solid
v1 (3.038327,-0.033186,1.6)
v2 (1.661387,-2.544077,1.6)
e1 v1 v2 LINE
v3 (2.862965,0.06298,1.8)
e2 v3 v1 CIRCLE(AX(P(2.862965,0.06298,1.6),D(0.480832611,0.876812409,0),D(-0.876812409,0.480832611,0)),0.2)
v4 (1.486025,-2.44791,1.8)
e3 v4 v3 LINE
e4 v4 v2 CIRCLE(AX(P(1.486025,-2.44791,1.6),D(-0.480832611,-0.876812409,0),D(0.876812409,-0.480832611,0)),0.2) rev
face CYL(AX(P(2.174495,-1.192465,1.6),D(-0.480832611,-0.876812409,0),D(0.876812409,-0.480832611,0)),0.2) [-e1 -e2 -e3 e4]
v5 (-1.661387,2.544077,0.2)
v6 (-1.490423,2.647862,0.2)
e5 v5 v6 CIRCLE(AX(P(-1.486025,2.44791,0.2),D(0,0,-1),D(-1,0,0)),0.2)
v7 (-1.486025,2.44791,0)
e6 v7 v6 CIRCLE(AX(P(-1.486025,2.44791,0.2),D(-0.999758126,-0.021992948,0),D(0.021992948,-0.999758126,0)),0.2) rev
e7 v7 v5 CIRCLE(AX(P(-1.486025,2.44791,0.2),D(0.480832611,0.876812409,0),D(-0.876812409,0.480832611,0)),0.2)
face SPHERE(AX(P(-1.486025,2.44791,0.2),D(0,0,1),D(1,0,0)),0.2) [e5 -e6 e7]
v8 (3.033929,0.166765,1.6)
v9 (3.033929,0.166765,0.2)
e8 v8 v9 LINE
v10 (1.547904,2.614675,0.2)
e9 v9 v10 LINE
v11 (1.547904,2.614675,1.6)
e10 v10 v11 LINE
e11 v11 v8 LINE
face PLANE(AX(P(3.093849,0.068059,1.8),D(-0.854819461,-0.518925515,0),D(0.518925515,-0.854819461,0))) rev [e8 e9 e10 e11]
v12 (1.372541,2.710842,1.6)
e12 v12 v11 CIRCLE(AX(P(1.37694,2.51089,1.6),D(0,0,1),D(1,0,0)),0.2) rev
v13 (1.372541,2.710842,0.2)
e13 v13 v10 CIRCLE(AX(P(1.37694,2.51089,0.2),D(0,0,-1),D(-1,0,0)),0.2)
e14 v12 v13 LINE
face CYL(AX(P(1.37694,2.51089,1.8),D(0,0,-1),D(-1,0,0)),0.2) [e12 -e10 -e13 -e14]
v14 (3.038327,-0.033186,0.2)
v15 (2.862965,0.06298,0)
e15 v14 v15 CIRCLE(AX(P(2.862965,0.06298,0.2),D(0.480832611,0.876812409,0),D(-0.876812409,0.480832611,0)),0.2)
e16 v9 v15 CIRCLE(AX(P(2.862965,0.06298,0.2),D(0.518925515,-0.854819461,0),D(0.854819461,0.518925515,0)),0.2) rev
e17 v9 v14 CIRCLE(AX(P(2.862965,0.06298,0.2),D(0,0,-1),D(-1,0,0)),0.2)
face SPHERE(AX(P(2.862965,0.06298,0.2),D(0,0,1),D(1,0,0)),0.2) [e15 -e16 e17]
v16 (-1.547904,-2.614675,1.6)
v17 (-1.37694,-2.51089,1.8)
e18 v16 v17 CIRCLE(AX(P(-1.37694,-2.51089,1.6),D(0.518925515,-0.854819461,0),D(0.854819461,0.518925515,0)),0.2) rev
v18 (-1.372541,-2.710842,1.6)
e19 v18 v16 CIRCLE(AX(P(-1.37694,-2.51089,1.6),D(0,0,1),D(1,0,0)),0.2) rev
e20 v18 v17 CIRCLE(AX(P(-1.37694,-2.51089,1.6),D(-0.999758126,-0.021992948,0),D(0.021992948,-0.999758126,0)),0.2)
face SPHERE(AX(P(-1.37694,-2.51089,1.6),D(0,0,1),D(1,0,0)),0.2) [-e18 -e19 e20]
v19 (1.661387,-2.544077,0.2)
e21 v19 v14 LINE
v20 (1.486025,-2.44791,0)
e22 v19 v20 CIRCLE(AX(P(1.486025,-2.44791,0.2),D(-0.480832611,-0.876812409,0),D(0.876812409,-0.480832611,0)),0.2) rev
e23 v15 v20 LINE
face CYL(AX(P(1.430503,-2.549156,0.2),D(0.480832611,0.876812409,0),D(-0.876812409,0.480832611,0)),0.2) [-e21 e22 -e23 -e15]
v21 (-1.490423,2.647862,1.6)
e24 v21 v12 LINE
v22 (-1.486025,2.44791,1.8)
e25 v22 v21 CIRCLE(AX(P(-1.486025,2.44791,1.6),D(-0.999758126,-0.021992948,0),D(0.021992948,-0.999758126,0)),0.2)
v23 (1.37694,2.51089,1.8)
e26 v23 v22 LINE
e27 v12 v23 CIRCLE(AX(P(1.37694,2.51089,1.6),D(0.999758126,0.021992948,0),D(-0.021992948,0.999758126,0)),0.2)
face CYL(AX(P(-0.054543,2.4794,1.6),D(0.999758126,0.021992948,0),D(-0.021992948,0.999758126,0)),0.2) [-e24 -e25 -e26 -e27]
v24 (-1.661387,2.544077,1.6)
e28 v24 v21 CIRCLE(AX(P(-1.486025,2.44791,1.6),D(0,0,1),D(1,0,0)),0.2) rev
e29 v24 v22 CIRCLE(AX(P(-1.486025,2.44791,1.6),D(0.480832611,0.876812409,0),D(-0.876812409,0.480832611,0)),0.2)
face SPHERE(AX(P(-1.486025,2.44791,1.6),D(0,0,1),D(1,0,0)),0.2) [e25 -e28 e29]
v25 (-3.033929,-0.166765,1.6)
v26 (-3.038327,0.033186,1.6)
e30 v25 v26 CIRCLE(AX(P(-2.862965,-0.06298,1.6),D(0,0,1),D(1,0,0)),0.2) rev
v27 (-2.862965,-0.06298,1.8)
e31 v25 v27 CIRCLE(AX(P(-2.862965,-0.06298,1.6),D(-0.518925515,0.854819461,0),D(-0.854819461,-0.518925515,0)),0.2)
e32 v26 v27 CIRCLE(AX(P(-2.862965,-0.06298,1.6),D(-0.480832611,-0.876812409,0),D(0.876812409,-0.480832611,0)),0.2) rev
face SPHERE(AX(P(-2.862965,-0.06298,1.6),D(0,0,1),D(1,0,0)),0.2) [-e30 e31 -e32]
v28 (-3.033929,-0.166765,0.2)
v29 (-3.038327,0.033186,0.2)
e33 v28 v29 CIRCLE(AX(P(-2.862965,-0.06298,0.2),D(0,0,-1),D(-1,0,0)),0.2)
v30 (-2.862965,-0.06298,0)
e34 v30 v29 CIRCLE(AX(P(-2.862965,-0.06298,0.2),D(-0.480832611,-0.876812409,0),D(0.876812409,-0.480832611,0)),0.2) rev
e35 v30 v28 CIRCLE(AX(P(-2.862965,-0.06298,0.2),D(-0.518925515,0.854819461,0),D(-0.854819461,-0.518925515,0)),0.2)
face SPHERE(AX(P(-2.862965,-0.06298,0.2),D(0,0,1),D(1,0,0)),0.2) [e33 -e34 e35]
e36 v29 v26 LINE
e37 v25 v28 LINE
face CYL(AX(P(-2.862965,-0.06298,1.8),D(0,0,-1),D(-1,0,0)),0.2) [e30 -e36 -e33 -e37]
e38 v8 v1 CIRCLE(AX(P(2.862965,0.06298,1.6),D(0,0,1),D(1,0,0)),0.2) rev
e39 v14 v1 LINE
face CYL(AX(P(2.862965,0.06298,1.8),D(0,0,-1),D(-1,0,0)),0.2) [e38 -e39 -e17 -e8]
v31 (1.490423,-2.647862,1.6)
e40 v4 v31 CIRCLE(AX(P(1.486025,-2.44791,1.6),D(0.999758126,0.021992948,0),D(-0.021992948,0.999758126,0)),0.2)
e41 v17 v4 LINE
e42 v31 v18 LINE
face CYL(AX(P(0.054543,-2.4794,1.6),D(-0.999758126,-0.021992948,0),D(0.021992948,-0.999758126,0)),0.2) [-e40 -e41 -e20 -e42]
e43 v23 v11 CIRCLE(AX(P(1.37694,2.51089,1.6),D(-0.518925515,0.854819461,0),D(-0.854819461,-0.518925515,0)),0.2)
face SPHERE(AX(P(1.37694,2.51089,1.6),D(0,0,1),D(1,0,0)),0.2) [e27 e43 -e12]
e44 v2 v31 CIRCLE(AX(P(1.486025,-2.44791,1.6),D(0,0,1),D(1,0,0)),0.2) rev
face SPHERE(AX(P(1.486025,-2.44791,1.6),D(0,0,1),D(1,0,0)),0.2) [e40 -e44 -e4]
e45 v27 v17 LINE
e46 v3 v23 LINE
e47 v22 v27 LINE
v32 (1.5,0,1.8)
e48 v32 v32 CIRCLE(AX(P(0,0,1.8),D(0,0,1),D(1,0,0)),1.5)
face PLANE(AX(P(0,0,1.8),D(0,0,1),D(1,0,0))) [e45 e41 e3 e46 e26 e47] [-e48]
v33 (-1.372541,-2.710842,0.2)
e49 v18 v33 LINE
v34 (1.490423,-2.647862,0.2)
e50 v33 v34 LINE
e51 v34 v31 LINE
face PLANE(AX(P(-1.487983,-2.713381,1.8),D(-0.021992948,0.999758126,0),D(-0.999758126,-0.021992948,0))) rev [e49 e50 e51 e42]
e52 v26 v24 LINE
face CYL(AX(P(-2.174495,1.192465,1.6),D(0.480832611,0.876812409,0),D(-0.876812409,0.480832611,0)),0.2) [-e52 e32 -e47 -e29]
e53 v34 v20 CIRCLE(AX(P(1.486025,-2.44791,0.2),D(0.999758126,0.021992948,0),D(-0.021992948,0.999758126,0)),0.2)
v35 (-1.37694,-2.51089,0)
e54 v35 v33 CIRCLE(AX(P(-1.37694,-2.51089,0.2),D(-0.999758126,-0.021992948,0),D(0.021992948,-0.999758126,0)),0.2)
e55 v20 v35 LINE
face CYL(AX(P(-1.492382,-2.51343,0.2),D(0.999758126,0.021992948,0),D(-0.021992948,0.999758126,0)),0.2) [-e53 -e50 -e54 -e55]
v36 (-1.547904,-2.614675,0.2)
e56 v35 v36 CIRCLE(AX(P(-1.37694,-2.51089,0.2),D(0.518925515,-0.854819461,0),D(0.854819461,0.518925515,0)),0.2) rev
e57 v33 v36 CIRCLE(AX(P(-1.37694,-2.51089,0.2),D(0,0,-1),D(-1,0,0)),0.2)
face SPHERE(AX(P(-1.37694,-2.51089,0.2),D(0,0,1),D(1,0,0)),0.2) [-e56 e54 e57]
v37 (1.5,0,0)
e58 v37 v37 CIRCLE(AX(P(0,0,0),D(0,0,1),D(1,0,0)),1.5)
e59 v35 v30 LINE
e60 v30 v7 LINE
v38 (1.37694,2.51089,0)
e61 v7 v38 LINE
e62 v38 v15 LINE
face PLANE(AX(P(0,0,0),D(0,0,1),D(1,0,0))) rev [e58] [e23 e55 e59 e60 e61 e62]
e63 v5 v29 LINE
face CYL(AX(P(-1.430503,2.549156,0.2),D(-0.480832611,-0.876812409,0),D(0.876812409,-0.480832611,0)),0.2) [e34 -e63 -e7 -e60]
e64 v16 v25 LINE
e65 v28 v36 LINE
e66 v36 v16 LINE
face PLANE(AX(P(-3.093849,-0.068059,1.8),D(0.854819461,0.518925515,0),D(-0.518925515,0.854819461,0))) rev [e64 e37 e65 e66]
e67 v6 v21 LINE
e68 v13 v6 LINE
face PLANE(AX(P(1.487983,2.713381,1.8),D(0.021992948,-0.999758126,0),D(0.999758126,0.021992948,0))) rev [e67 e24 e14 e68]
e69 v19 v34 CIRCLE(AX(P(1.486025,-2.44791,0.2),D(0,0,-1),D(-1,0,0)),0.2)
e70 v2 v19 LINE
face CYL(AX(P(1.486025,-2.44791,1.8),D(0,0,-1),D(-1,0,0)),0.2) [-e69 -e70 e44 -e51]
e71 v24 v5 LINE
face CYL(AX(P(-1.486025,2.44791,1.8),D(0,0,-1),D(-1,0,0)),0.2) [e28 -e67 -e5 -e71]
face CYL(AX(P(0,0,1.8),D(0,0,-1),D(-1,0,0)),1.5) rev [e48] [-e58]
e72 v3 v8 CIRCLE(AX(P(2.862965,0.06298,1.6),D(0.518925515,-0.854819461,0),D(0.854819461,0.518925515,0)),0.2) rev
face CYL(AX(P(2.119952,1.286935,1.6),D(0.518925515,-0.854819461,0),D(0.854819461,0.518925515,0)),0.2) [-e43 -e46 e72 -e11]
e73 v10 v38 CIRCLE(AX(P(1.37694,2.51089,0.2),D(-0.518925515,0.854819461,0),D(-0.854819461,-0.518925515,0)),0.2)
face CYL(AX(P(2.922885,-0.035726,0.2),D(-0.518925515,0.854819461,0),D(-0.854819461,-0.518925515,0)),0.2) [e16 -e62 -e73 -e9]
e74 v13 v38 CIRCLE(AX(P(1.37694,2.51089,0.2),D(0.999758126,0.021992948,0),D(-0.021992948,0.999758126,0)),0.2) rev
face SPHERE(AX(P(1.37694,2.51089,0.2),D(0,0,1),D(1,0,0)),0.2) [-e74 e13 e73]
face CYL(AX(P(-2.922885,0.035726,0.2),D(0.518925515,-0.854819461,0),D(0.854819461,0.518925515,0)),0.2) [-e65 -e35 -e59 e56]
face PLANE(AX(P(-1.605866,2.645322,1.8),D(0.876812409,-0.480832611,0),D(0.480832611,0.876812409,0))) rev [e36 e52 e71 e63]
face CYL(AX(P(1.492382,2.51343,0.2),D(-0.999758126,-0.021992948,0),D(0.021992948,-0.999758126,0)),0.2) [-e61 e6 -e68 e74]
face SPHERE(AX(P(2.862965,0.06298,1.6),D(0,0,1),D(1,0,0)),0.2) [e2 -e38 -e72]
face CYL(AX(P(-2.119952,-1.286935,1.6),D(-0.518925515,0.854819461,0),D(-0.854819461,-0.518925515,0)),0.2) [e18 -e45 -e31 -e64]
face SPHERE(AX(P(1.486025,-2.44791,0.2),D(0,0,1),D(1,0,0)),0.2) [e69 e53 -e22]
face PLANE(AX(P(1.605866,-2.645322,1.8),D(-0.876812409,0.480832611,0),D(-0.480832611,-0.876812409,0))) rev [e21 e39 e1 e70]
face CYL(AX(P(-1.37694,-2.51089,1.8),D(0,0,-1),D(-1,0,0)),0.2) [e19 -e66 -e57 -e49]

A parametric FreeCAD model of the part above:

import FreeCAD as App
import Part
import Sketcher
from FreeCAD import Vector
Q = App.Units.Quantity


def edges_at(feature, points):
    """Names of the edges that pass closest to the given points."""
    edges = feature.Shape.Edges
    near = lambda p: min(range(len(edges)), key=lambda i: edges[i].distToShape(Part.Vertex(*p))[0])
    return sorted({f"Edge{near(p) + 1}" for p in points})


def add_polygon(sketch, points):
    """Adds a closed chain of lines whose ends are joined by coincident constraints."""
    first, n = sketch.GeometryCount, len(points)
    for a, b in zip(points, points[1:] + points[:1]):
        sketch.addGeometry(Part.LineSegment(App.Vector(*a, 0), App.Vector(*b, 0)), False)
    for i in range(n):
        sketch.addConstraint(Sketcher.Constraint("Coincident", first + i, 2, first + (i + 1) % n, 1))

doc = App.newDocument("Part")
body = doc.addObject("PartDesign::Body", "Body")

# Sketch on XY plane
sketch1 = body.newObject("Sketcher::SketchObject", "Sketch")
sketch1.AttachmentSupport = (doc.getObject("XY_Plane"), [""])
sketch1.MapMode = "FlatFace"
add_polygon(sketch1, [(-1.487983, -2.713381), (1.605866, -2.645322), (3.093849, 0.068059), (1.487983, 2.713381), (-1.605866, 2.645322), (-3.093849, -0.068059)])  # lines 0-5
sketch1.addGeometry(Part.Circle(Vector(0, 0, 0), Vector(0, 0, 1), 1.5), False)  # 6
sketch1.addConstraint(Sketcher.Constraint("Coincident", 6, 3, -1, 1))
sketch1.addConstraint(Sketcher.Constraint("Symmetric", 0, 2, 3, 2, -1, 1))
sketch1.addConstraint(Sketcher.Constraint("Symmetric", 1, 2, 4, 2, -1, 1))
sketch1.addConstraint(Sketcher.Constraint("Symmetric", 2, 2, 5, 2, -1, 1))
sketch1.addConstraint(Sketcher.Constraint("Equal", 0, 1))
sketch1.addConstraint(Sketcher.Constraint("Equal", 1, 2))
sketch1.addConstraint(Sketcher.Constraint("Diameter", 6, Q("3 mm")))
sketch1.addConstraint(Sketcher.Constraint("DistanceX", -1, 1, 1, 2, Q("3.093849 mm")))
sketch1.addConstraint(Sketcher.Constraint("DistanceY", -1, 1, 1, 2, Q("0.068059 mm")))
sketch1.addConstraint(Sketcher.Constraint("DistanceY", -1, 1, 2, 2, Q("2.713381 mm")))
sketch1.addConstraint(Sketcher.Constraint("DistanceY", 0, 2, 1, 2, Q("2.713381 mm")))
pad1 = body.newObject("PartDesign::Pad", "Pad")
pad1.Profile = sketch1
pad1.Length = 1.8
doc.recompute()

fillet = body.newObject("PartDesign::Fillet", "Fillet")
fillet.Base = (pad1, edges_at(pad1, [
    (2.35, -1.289, 1.8),
    (-3.094, -0.068, 0.9),
    (-1.606, 2.645, 0.9),
    (1.488, 2.713, 0.9),
    (3.094, 0.068, 0.9),
    (1.606, -2.645, 0.9),
    (-1.488, -2.713, 0.9),
    (2.291, 1.391, 1.8),
    (-0.059, 2.679, 1.8),
    (-2.35, 1.289, 1.8),
    (-2.291, -1.391, 1.8),
    (-2.35, 1.289, 0),
    (-0.059, 2.679, 0),
    (2.291, 1.391, 0),
    (0.059, -2.679, 1.8),
    (2.35, -1.289, 0),
    (0.059, -2.679, 0),
    (-2.291, -1.391, 0),
]))
fillet.Radius = 0.2

doc.recompute()
